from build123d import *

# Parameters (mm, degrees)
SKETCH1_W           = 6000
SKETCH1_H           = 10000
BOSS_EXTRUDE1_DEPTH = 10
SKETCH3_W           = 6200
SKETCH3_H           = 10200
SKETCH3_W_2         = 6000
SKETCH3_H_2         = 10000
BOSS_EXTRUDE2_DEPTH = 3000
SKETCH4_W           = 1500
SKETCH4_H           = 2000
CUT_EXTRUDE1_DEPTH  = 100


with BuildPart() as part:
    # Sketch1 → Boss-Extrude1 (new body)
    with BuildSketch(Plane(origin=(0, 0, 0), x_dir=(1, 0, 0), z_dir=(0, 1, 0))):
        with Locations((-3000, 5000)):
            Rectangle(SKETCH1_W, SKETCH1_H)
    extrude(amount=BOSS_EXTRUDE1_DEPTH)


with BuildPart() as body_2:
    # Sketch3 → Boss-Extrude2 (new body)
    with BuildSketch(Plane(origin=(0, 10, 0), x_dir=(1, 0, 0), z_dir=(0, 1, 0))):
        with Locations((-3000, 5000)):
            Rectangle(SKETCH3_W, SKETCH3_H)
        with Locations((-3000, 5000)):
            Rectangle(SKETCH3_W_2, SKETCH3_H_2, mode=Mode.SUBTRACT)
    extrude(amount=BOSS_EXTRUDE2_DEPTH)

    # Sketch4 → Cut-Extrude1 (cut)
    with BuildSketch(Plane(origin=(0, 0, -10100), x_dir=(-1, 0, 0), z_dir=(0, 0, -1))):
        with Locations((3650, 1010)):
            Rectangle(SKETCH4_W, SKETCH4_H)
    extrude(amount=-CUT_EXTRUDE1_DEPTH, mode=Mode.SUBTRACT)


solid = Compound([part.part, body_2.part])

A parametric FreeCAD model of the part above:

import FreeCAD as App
import Part
import Sketcher

V = App.Vector


def add_polygon(sketch, points):
    """Adds a closed chain of lines whose ends are joined by coincident constraints."""
    first, n = sketch.GeometryCount, len(points)
    for a, b in zip(points, points[1:] + points[:1]):
        sketch.addGeometry(Part.LineSegment(App.Vector(*a, 0), App.Vector(*b, 0)), False)
    for i in range(n):
        sketch.addConstraint(Sketcher.Constraint("Coincident", first + i, 2, first + (i + 1) % n, 1))

doc = App.newDocument("Part")
body = doc.addObject("PartDesign::Body", "Body")

# Sketch on XZ plane
sketch1 = body.newObject("Sketcher::SketchObject", "Sketch")
sketch1.AttachmentSupport = (doc.getObject("XZ_Plane"), [""])
sketch1.MapMode = "FlatFace"
add_polygon(sketch1, [(-6000, -10000), (-6000, 0), (0, 0), (0, -10000)])  # lines 0-3
sketch1.addConstraint(Sketcher.Constraint("Vertical", 0))
sketch1.addConstraint(Sketcher.Constraint("Horizontal", 1))
sketch1.addConstraint(Sketcher.Constraint("Vertical", 2))
sketch1.addConstraint(Sketcher.Constraint("Horizontal", 3))
sketch1.addConstraint(Sketcher.Constraint("Coincident", 1, 2, -1, 1))
sketch1.addConstraint(Sketcher.Constraint("DistanceX", 1, 1, 1, 2, 6000.0))
sketch1.addConstraint(Sketcher.Constraint("DistanceY", 0, 1, 0, 2, 10000.0))
pad1 = body.newObject("PartDesign::Pad", "Pad")
pad1.Profile = sketch1
pad1.Length = 10
pad1.Reversed = True
body2 = doc.addObject("PartDesign::Body", "Body001")

# Sketch on XZ plane
sketch2 = body2.newObject("Sketcher::SketchObject", "Sketch001")
sketch2.AttachmentSupport = (doc.getObject("XZ_Plane001"), [""])
sketch2.MapMode = "FlatFace"
sketch2.AttachmentOffset = App.Placement(V(0, 0, -10), App.Rotation())
add_polygon(sketch2, [(-6100, -10100), (-6100, 100), (100, 100), (100, -10100)])  # lines 0-3
add_polygon(sketch2, [(0, 0), (-6000, 0), (-6000, -10000), (0, -10000)])  # lines 4-7
sketch2.addConstraint(Sketcher.Constraint("Vertical", 0))
sketch2.addConstraint(Sketcher.Constraint("Horizontal", 1))
sketch2.addConstraint(Sketcher.Constraint("Vertical", 2))
sketch2.addConstraint(Sketcher.Constraint("Horizontal", 3))
sketch2.addConstraint(Sketcher.Constraint("Horizontal", 4))
sketch2.addConstraint(Sketcher.Constraint("Vertical", 5))
sketch2.addConstraint(Sketcher.Constraint("Horizontal", 6))
sketch2.addConstraint(Sketcher.Constraint("Vertical", 7))
sketch2.addConstraint(Sketcher.Constraint("Coincident", 7, 2, -1, 1))
sketch2.addConstraint(Sketcher.Constraint("DistanceX", 1, 1, 1, 2, 6200.0))
sketch2.addConstraint(Sketcher.Constraint("DistanceX", 4, 2, 4, 1, 6000.0))
sketch2.addConstraint(Sketcher.Constraint("DistanceY", 0, 1, 0, 2, 10200.0))
sketch2.addConstraint(Sketcher.Constraint("DistanceY", 5, 2, 5, 1, 10000.0))
sketch2.addConstraint(Sketcher.Constraint("DistanceX", 0, 2, -1, 1, 6100.0))
sketch2.addConstraint(Sketcher.Constraint("DistanceY", -1, 1, 0, 2, 100.0))
pad2 = body2.newObject("PartDesign::Pad", "Pad001")
pad2.Profile = sketch2
pad2.Length = 3000
pad2.Reversed = True

# Sketch on XY plane
sketch3 = body2.newObject("Sketcher::SketchObject", "Sketch002")
sketch3.AttachmentSupport = (doc.getObject("XY_Plane001"), [""])
sketch3.MapMode = "FlatFace"
sketch3.AttachmentOffset = App.Placement(V(0, 0, -10100), App.Rotation())
add_polygon(sketch3, [(-2900, 2010), (-2900, 10), (-4400, 10), (-4400, 2010)])  # lines 0-3
sketch3.addConstraint(Sketcher.Constraint("Vertical", 0))
sketch3.addConstraint(Sketcher.Constraint("Horizontal", 1))
sketch3.addConstraint(Sketcher.Constraint("Vertical", 2))
sketch3.addConstraint(Sketcher.Constraint("Horizontal", 3))
sketch3.addConstraint(Sketcher.Constraint("DistanceX", 1, 2, 1, 1, 1500.0))
sketch3.addConstraint(Sketcher.Constraint("DistanceY", 0, 2, 0, 1, 2000.0))
sketch3.addConstraint(Sketcher.Constraint("DistanceX", 0, 2, -1, 1, 2900.0))
sketch3.addConstraint(Sketcher.Constraint("DistanceY", -1, 1, 0, 2, 10.0))
pocket1 = body2.newObject("PartDesign::Pocket", "Pocket")
pocket1.Profile = sketch3
pocket1.Length = 100
pocket1.Reversed = True

doc.recompute()
